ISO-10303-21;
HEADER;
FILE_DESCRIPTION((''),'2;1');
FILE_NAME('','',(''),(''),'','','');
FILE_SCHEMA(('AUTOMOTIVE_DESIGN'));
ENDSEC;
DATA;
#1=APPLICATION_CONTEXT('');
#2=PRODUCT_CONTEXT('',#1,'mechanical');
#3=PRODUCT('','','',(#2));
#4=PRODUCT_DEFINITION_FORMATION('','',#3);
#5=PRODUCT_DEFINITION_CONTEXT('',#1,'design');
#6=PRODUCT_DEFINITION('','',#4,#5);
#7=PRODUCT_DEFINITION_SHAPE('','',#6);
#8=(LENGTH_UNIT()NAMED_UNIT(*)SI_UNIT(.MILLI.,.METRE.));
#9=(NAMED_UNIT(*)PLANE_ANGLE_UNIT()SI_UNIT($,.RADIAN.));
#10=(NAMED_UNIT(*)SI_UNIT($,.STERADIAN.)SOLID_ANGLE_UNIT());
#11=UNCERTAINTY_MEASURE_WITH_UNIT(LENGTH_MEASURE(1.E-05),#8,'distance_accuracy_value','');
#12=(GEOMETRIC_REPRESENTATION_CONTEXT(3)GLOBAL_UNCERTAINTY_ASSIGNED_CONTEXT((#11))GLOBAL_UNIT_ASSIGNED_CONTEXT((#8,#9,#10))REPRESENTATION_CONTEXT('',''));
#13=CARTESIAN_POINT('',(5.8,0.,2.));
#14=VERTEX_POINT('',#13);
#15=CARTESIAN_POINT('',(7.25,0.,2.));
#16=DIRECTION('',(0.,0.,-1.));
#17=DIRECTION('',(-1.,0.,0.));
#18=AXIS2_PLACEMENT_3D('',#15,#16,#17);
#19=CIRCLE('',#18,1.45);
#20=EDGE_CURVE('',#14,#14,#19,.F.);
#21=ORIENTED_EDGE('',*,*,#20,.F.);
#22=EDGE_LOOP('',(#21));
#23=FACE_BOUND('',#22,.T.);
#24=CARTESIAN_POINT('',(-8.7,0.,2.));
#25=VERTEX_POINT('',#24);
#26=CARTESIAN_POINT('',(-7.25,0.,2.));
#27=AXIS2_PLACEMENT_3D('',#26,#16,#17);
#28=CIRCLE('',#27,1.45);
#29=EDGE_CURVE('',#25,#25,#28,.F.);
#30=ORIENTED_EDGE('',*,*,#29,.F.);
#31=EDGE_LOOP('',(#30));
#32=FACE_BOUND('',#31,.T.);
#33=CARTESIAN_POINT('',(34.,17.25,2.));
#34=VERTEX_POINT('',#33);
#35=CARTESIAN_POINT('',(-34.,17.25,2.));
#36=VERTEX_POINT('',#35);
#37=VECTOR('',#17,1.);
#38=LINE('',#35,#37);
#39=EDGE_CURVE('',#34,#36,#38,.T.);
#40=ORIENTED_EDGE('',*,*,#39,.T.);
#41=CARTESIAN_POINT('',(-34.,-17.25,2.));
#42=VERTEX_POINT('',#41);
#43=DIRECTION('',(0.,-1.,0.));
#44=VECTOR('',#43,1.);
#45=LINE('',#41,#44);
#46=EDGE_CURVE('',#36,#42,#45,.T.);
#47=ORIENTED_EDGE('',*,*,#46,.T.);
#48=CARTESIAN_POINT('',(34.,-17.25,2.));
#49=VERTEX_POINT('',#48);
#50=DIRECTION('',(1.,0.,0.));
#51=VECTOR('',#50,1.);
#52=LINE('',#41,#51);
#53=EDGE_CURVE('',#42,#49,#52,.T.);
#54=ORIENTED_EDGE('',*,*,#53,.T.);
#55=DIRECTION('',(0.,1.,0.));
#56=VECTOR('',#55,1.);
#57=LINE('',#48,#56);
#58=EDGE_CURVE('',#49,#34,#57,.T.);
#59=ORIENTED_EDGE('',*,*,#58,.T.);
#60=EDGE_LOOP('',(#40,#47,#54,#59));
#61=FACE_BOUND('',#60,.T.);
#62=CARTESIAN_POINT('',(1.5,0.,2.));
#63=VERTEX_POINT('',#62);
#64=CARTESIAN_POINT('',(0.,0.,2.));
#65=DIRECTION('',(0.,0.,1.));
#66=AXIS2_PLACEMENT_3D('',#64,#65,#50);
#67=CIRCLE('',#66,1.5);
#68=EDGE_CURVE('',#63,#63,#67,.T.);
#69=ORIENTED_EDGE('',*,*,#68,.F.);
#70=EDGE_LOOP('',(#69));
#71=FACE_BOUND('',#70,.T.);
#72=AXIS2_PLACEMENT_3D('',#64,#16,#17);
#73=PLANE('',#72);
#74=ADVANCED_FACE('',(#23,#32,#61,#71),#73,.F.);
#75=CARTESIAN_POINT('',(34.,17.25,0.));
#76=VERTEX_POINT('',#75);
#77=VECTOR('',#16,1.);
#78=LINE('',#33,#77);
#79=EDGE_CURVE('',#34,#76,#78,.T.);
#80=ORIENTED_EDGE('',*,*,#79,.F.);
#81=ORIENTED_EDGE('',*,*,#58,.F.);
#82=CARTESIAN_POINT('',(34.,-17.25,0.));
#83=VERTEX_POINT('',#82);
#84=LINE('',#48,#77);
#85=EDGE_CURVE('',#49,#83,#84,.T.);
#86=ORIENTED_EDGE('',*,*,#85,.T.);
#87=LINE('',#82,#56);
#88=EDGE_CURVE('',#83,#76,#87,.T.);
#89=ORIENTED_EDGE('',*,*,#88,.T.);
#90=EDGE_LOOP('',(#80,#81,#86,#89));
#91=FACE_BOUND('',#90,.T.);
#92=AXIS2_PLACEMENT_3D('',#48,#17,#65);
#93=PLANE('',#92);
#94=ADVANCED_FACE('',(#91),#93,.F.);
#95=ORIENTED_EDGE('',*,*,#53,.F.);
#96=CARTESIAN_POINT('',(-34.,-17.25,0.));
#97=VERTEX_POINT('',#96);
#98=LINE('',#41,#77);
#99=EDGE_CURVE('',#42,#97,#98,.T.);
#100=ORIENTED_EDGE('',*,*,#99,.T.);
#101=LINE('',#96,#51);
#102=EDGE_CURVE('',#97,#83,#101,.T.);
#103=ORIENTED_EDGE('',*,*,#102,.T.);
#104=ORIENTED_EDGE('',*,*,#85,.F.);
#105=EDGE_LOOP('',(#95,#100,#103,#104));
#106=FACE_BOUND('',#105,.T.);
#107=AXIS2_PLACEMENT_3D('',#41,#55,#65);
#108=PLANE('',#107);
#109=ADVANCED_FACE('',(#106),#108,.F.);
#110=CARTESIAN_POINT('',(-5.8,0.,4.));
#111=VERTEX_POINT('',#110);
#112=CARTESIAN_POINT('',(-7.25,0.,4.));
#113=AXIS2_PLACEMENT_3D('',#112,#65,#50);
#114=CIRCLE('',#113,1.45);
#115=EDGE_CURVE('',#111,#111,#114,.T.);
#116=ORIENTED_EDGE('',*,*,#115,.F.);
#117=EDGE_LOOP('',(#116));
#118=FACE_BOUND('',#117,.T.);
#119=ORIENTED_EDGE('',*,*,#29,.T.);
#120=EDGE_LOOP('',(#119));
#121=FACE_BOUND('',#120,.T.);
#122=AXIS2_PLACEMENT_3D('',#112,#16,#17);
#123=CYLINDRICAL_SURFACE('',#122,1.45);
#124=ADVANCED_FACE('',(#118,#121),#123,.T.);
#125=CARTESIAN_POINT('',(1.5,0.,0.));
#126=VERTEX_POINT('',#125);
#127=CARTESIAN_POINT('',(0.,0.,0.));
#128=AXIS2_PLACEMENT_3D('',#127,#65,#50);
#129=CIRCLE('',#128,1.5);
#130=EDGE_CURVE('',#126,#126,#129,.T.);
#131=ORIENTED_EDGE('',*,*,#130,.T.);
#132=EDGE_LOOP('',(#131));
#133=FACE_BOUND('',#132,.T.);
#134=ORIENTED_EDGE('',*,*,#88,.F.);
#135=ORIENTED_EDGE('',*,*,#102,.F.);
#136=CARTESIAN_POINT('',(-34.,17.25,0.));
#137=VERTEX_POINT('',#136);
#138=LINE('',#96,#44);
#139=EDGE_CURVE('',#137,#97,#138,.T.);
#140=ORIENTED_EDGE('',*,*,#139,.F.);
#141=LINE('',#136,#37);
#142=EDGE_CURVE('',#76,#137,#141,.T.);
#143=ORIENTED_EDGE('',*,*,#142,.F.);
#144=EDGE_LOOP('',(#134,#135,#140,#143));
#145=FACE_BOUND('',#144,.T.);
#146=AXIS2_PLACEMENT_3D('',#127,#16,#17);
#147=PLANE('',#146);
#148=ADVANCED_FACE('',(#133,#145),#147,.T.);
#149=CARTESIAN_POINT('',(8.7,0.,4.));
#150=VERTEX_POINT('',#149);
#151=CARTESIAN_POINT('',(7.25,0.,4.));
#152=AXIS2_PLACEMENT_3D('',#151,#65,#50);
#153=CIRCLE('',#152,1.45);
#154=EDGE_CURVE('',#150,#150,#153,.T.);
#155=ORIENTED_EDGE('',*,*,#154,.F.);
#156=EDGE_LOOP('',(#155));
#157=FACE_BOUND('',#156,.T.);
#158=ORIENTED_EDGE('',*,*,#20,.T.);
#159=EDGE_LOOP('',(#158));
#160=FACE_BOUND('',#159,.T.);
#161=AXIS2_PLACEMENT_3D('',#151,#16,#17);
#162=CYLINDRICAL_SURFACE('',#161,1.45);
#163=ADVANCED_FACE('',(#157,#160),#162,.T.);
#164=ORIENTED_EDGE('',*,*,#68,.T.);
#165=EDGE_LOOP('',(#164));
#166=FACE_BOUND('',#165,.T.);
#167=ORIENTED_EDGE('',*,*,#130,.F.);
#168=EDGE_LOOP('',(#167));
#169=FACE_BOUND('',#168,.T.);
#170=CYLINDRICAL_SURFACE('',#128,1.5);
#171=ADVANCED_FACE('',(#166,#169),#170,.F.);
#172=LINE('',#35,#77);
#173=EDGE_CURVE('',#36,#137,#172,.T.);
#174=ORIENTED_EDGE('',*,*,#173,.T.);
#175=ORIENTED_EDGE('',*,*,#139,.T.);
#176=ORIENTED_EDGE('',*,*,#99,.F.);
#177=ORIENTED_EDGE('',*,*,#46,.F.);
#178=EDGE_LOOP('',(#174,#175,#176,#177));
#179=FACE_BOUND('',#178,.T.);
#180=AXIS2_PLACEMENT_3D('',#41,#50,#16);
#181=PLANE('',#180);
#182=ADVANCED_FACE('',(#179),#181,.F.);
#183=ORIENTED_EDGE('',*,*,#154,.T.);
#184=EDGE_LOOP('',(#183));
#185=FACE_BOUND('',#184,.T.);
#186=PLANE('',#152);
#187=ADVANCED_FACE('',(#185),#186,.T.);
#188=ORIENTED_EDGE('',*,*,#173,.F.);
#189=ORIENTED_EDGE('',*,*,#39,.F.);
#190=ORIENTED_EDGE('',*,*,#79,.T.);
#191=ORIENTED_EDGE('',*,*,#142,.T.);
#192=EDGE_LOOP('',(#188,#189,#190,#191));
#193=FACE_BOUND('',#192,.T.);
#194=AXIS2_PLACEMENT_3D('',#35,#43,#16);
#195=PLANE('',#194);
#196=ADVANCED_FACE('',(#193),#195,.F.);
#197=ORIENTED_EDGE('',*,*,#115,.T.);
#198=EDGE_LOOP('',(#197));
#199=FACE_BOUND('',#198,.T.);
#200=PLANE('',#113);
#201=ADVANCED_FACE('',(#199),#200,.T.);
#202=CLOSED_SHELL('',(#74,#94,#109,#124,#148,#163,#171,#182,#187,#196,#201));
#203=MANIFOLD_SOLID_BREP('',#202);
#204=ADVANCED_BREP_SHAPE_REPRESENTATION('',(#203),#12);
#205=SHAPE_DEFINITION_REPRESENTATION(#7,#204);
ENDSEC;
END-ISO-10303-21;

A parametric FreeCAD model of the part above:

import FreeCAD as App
import Part
import Sketcher
from FreeCAD import Vector
Q = App.Units.Quantity

doc = App.newDocument("Part")
body = doc.addObject("PartDesign::Body", "Body")

sketch1 = body.newObject("Sketcher::SketchObject", "Sketch")
sketch1.AttachmentSupport = (doc.getObject("XY_Plane"), [""])
sketch1.MapMode = "FlatFace"
sketch1.addGeometry(Part.LineSegment(Vector(-34, 17.25, 0), Vector(-34, -17.25, 0)), False)
sketch1.addGeometry(Part.LineSegment(Vector(-34, -17.25, 0), Vector(34, -17.25, 0)), False)
sketch1.addGeometry(Part.LineSegment(Vector(34, -17.25, 0), Vector(34, 17.25, 0)), False)
sketch1.addGeometry(Part.LineSegment(Vector(34, 17.25, 0), Vector(-34, 17.25, 0)), False)
sketch1.addConstraint(Sketcher.Constraint("Coincident", 0, 2, 1, 1))
sketch1.addConstraint(Sketcher.Constraint("Coincident", 1, 2, 2, 1))
sketch1.addConstraint(Sketcher.Constraint("Coincident", 2, 2, 3, 1))
sketch1.addConstraint(Sketcher.Constraint("Coincident", 3, 2, 0, 1))
sketch1.addConstraint(Sketcher.Constraint("Vertical", 0))
sketch1.addConstraint(Sketcher.Constraint("Horizontal", 1))
sketch1.addConstraint(Sketcher.Constraint("Vertical", 2))
sketch1.addConstraint(Sketcher.Constraint("Horizontal", 3))
sketch1.addConstraint(Sketcher.Constraint("Symmetric", 0, 2, 2, 2, -1, 1))
sketch1.addConstraint(Sketcher.Constraint("DistanceX", 1, 1, 1, 2, Q("68 mm")))
sketch1.addConstraint(Sketcher.Constraint("DistanceY", 0, 2, 0, 1, Q("34.5 mm")))
pad1 = body.newObject("PartDesign::Pad", "Pad")
pad1.Profile = sketch1
pad1.Length = 2

sketch2 = body.newObject("Sketcher::SketchObject", "Sketch001")
sketch2.AttachmentSupport = (doc.getObject("XY_Plane"), [""])
sketch2.MapMode = "FlatFace"
sketch2.AttachmentOffset = App.Placement(Vector(0, 0, 2), App.Rotation())
sketch2.addGeometry(Part.Circle(Vector(-7.25, 0, 0), Vector(0, 0, 1), 1.45), False)
sketch2.addGeometry(Part.Circle(Vector(7.25, 0, 0), Vector(0, 0, 1), 1.45), False)
sketch2.addConstraint(Sketcher.Constraint("Equal", 0, 1))
sketch2.addConstraint(Sketcher.Constraint("Symmetric", 0, 3, 1, 3, -1, 1))
sketch2.addConstraint(Sketcher.Constraint("PointOnObject", 0, 3, -1))
sketch2.addConstraint(Sketcher.Constraint("Diameter", 0, Q("2.9 mm")))
sketch2.addConstraint(Sketcher.Constraint("DistanceX", 0, 3, 1, 3, Q("14.5 mm")))
pad2 = body.newObject("PartDesign::Pad", "Pad001")
pad2.Profile = sketch2
pad2.Length = 2

sketch3 = body.newObject("Sketcher::SketchObject", "Sketch002")
sketch3.AttachmentSupport = (doc.getObject("XY_Plane"), [""])
sketch3.MapMode = "FlatFace"
sketch3.AttachmentOffset = App.Placement(Vector(0, 0, 2), App.Rotation())
sketch3.addGeometry(Part.Circle(Vector(0, 0, 0), Vector(0, 0, 1), 1.5), False)
sketch3.addConstraint(Sketcher.Constraint("Coincident", 0, 3, -1, 1))
sketch3.addConstraint(Sketcher.Constraint("Diameter", 0, Q("3 mm")))
pocket1 = body.newObject("PartDesign::Pocket", "Pocket")
pocket1.Profile = sketch3
pocket1.Type = "ThroughAll"

doc.recompute()
